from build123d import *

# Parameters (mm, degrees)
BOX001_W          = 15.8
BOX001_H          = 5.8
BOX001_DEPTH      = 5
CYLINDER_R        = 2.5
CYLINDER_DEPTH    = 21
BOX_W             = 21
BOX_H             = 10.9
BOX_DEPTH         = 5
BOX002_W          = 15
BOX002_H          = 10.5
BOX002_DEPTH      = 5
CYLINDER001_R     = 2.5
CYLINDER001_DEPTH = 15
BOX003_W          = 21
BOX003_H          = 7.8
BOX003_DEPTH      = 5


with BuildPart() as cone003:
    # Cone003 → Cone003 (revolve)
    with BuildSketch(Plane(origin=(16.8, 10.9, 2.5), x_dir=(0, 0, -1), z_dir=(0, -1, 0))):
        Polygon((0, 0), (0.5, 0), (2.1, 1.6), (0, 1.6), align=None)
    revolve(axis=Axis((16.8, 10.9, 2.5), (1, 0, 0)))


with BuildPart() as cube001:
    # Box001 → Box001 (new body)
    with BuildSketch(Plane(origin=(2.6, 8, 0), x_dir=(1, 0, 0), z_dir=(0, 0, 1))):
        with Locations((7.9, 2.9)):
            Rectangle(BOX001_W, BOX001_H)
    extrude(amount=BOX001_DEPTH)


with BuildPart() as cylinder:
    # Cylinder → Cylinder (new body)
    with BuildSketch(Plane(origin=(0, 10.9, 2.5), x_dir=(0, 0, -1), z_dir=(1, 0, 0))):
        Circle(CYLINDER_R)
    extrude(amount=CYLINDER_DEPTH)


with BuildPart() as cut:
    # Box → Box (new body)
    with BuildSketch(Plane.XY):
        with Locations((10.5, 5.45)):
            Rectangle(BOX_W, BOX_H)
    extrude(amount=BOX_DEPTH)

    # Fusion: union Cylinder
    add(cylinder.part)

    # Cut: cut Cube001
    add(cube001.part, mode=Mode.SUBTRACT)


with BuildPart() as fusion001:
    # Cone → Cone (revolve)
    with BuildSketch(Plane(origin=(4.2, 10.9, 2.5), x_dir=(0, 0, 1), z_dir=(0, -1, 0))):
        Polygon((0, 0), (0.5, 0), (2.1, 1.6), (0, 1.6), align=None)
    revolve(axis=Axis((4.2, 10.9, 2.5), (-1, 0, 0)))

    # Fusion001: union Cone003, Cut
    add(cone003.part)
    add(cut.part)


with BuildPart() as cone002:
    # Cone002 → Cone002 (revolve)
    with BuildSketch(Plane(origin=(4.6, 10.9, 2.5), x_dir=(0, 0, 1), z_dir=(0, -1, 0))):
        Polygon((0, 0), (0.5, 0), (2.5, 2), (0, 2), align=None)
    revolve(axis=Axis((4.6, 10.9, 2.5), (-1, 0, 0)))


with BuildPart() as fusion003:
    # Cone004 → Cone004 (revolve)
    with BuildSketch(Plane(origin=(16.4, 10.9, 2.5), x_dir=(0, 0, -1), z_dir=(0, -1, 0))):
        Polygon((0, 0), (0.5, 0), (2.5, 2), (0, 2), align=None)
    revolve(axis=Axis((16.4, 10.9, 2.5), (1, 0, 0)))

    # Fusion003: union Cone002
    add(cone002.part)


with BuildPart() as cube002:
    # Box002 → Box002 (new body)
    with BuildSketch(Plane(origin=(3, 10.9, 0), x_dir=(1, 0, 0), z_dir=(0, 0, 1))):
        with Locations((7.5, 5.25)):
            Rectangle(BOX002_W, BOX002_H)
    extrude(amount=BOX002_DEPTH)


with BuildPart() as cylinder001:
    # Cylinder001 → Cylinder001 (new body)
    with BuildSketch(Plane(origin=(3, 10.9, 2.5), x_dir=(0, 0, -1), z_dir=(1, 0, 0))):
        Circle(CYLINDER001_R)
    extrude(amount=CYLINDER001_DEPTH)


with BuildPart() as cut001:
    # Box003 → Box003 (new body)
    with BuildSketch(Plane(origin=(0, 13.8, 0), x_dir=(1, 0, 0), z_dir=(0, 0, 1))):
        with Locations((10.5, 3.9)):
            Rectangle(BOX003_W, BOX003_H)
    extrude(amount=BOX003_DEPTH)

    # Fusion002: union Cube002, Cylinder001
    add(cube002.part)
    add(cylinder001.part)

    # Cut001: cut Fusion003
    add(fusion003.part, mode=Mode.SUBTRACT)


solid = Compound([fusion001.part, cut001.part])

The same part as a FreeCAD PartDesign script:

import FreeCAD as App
import Part
import Sketcher
from FreeCAD import Vector
Q = App.Units.Quantity

doc = App.newDocument("Part")
body = doc.addObject("PartDesign::Body", "Body")

# Sketch on XZ plane
sketch1 = body.newObject("Sketcher::SketchObject", "Sketch")
sketch1.AttachmentSupport = (doc.getObject("XZ_Plane"), [""])
sketch1.MapMode = "FlatFace"
sketch1.AttachmentOffset = App.Placement(Vector(0, 0, -10.9), App.Rotation())
sketch1.addGeometry(Part.LineSegment(Vector(16.8, 2.5, 0), Vector(16.8, 2, 0)), False)
sketch1.addGeometry(Part.LineSegment(Vector(16.8, 2, 0), Vector(18.4, 0.4, 0)), False)
sketch1.addGeometry(Part.LineSegment(Vector(18.4, 0.4, 0), Vector(18.4, 2.5, 0)), False)
sketch1.addGeometry(Part.LineSegment(Vector(18.4, 2.5, 0), Vector(16.8, 2.5, 0)), False)
sketch1.addGeometry(Part.LineSegment(Vector(16.8, 2.5, 0), Vector(18.4, 2.5, 0)), True)  # axis
sketch1.addConstraint(Sketcher.Constraint("Coincident", 0, 2, 1, 1))
sketch1.addConstraint(Sketcher.Constraint("Coincident", 1, 2, 2, 1))
sketch1.addConstraint(Sketcher.Constraint("Coincident", 2, 2, 3, 1))
sketch1.addConstraint(Sketcher.Constraint("Coincident", 3, 2, 0, 1))
sketch1.addConstraint(Sketcher.Constraint("Vertical", 0))
sketch1.addConstraint(Sketcher.Constraint("Vertical", 2))
sketch1.addConstraint(Sketcher.Constraint("Horizontal", 3))
sketch1.addConstraint(Sketcher.Constraint("Horizontal", 4))
sketch1.addConstraint(Sketcher.Constraint("Coincident", 4, 1, 3, 2))
sketch1.addConstraint(Sketcher.Constraint("Vertical", 1, 2, 4, 2))
sketch1.addConstraint(Sketcher.Constraint("Angle", 1, Q("-45 deg")))
sketch1.addConstraint(Sketcher.Constraint("DistanceX", 3, 2, 3, 1, 1.6))
sketch1.addConstraint(Sketcher.Constraint("DistanceY", 0, 2, 0, 1, 0.5))
sketch1.addConstraint(Sketcher.Constraint("DistanceY", -1, 1, 0, 2, 2.0))
sketch1.addConstraint(Sketcher.Constraint("DistanceX", -1, 1, 0, 2, 16.8))
revolution = body.newObject("PartDesign::Revolution", "Revolution")
revolution.Profile = sketch1
revolution.ReferenceAxis = (sketch1, ["Axis0"])
revolution.Angle = 360
body2 = doc.addObject("PartDesign::Body", "Body001")

# Sketch on XY plane
sketch2 = body2.newObject("Sketcher::SketchObject", "Sketch001")
sketch2.AttachmentSupport = (doc.getObject("XY_Plane001"), [""])
sketch2.MapMode = "FlatFace"
sketch2.addGeometry(Part.LineSegment(Vector(3, 14, 0), Vector(3, 8, 0)), False)
sketch2.addGeometry(Part.LineSegment(Vector(3, 8, 0), Vector(18, 8, 0)), False)
sketch2.addGeometry(Part.LineSegment(Vector(18, 8, 0), Vector(18, 14, 0)), False)
sketch2.addGeometry(Part.LineSegment(Vector(18, 14, 0), Vector(3, 14, 0)), False)
sketch2.addConstraint(Sketcher.Constraint("Coincident", 0, 2, 1, 1))
sketch2.addConstraint(Sketcher.Constraint("Coincident", 1, 2, 2, 1))
sketch2.addConstraint(Sketcher.Constraint("Coincident", 2, 2, 3, 1))
sketch2.addConstraint(Sketcher.Constraint("Coincident", 3, 2, 0, 1))
sketch2.addConstraint(Sketcher.Constraint("Vertical", 0))
sketch2.addConstraint(Sketcher.Constraint("Horizontal", 1))
sketch2.addConstraint(Sketcher.Constraint("Vertical", 2))
sketch2.addConstraint(Sketcher.Constraint("Horizontal", 3))
sketch2.addConstraint(Sketcher.Constraint("DistanceX", 1, 1, 1, 2, 15.8))
sketch2.addConstraint(Sketcher.Constraint("DistanceY", 0, 2, 0, 1, 5.8))
sketch2.addConstraint(Sketcher.Constraint("DistanceY", -1, 1, 0, 2, 8.0))
sketch2.addConstraint(Sketcher.Constraint("DistanceX", -1, 1, 0, 2, 2.6))
pad1 = body2.newObject("PartDesign::Pad", "Pad")
pad1.Profile = sketch2
pad1.Length = 5
body3 = doc.addObject("PartDesign::Body", "Body002")

# Sketch on YZ plane
sketch3 = body3.newObject("Sketcher::SketchObject", "Sketch002")
sketch3.AttachmentSupport = (doc.getObject("YZ_Plane002"), [""])
sketch3.MapMode = "FlatFace"
sketch3.addGeometry(Part.Circle(Vector(10.9, 2.5, 0), Vector(0, 0, 1), 2.5), False)
sketch3.addConstraint(Sketcher.Constraint("Diameter", 0, 5.0))
sketch3.addConstraint(Sketcher.Constraint("DistanceX", -1, 1, 0, 3, 10.9))
sketch3.addConstraint(Sketcher.Constraint("DistanceY", -1, 1, 0, 3, 2.5))
pad2 = body3.newObject("PartDesign::Pad", "Pad001")
pad2.Profile = sketch3
pad2.Length = 21
body4 = doc.addObject("PartDesign::Body", "Body003")

# Sketch on XY plane
sketch4 = body4.newObject("Sketcher::SketchObject", "Sketch003")
sketch4.AttachmentSupport = (doc.getObject("XY_Plane003"), [""])
sketch4.MapMode = "FlatFace"
sketch4.addGeometry(Part.LineSegment(Vector(0, 11, 0), Vector(0, 0, 0)), False)
sketch4.addGeometry(Part.LineSegment(Vector(0, 0, 0), Vector(21, 0, 0)), False)
sketch4.addGeometry(Part.LineSegment(Vector(21, 0, 0), Vector(21, 11, 0)), False)
sketch4.addGeometry(Part.LineSegment(Vector(21, 11, 0), Vector(0, 11, 0)), False)
sketch4.addConstraint(Sketcher.Constraint("Coincident", 0, 2, 1, 1))
sketch4.addConstraint(Sketcher.Constraint("Coincident", 1, 2, 2, 1))
sketch4.addConstraint(Sketcher.Constraint("Coincident", 2, 2, 3, 1))
sketch4.addConstraint(Sketcher.Constraint("Coincident", 3, 2, 0, 1))
sketch4.addConstraint(Sketcher.Constraint("Vertical", 0))
sketch4.addConstraint(Sketcher.Constraint("Horizontal", 1))
sketch4.addConstraint(Sketcher.Constraint("Vertical", 2))
sketch4.addConstraint(Sketcher.Constraint("Horizontal", 3))
sketch4.addConstraint(Sketcher.Constraint("Coincident", 0, 2, -1, 1))
sketch4.addConstraint(Sketcher.Constraint("DistanceX", 1, 1, 1, 2, 21.0))
sketch4.addConstraint(Sketcher.Constraint("DistanceY", 0, 2, 0, 1, 10.9))
pad3 = body4.newObject("PartDesign::Pad", "Pad002")
pad3.Profile = sketch4
pad3.Length = 5
doc.recompute()

boolean = body4.newObject("PartDesign::Boolean", "Boolean")
boolean.Type = "Fuse"
boolean.addObjects([body3])
doc.recompute()

boolean2 = body4.newObject("PartDesign::Boolean", "Boolean001")
boolean2.Type = "Cut"
boolean2.addObjects([body2])
body5 = doc.addObject("PartDesign::Body", "Body004")
body5.AllowCompound = True

# Sketch on XZ plane
sketch5 = body5.newObject("Sketcher::SketchObject", "Sketch004")
sketch5.AttachmentSupport = (doc.getObject("XZ_Plane004"), [""])
sketch5.MapMode = "FlatFace"
sketch5.AttachmentOffset = App.Placement(Vector(0, 0, -10.9), App.Rotation())
sketch5.addGeometry(Part.LineSegment(Vector(4.2, 2.5, 0), Vector(4.2, 3, 0)), False)
sketch5.addGeometry(Part.LineSegment(Vector(4.2, 3, 0), Vector(2.6, 4.6, 0)), False)
sketch5.addGeometry(Part.LineSegment(Vector(2.6, 4.6, 0), Vector(2.6, 2.5, 0)), False)
sketch5.addGeometry(Part.LineSegment(Vector(2.6, 2.5, 0), Vector(4.2, 2.5, 0)), False)
sketch5.addGeometry(Part.LineSegment(Vector(4.2, 2.5, 0), Vector(2.6, 2.5, 0)), True)  # axis
sketch5.addConstraint(Sketcher.Constraint("Coincident", 0, 2, 1, 1))
sketch5.addConstraint(Sketcher.Constraint("Coincident", 1, 2, 2, 1))
sketch5.addConstraint(Sketcher.Constraint("Coincident", 2, 2, 3, 1))
sketch5.addConstraint(Sketcher.Constraint("Coincident", 3, 2, 0, 1))
sketch5.addConstraint(Sketcher.Constraint("Vertical", 0))
sketch5.addConstraint(Sketcher.Constraint("Vertical", 2))
sketch5.addConstraint(Sketcher.Constraint("Horizontal", 3))
sketch5.addConstraint(Sketcher.Constraint("Horizontal", 4))
sketch5.addConstraint(Sketcher.Constraint("Coincident", 4, 1, 3, 2))
sketch5.addConstraint(Sketcher.Constraint("Vertical", 1, 2, 4, 2))
sketch5.addConstraint(Sketcher.Constraint("Angle", 1, Q("135 deg")))
sketch5.addConstraint(Sketcher.Constraint("DistanceX", 3, 1, 3, 2, 1.6))
sketch5.addConstraint(Sketcher.Constraint("DistanceY", 0, 1, 0, 2, 0.5))
sketch5.addConstraint(Sketcher.Constraint("DistanceY", -1, 1, 0, 2, 3.0))
sketch5.addConstraint(Sketcher.Constraint("DistanceX", -1, 1, 0, 2, 4.2))
revolution2 = body5.newObject("PartDesign::Revolution", "Revolution001")
revolution2.Profile = sketch5
revolution2.ReferenceAxis = (sketch5, ["Axis0"])
revolution2.Angle = 360
doc.recompute()

boolean3 = body5.newObject("PartDesign::Boolean", "Boolean002")
boolean3.Type = "Fuse"
boolean3.addObjects([body])
doc.recompute()

boolean4 = body5.newObject("PartDesign::Boolean", "Boolean003")
boolean4.Type = "Fuse"
boolean4.addObjects([body4])
body6 = doc.addObject("PartDesign::Body", "Body005")

# Sketch on XZ plane
sketch6 = body6.newObject("Sketcher::SketchObject", "Sketch005")
sketch6.AttachmentSupport = (doc.getObject("XZ_Plane005"), [""])
sketch6.MapMode = "FlatFace"
sketch6.AttachmentOffset = App.Placement(Vector(0, 0, -10.9), App.Rotation())
sketch6.addGeometry(Part.LineSegment(Vector(4.6, 2.5, 0), Vector(4.6, 3, 0)), False)
sketch6.addGeometry(Part.LineSegment(Vector(4.6, 3, 0), Vector(2.6, 5, 0)), False)
sketch6.addGeometry(Part.LineSegment(Vector(2.6, 5, 0), Vector(2.6, 2.5, 0)), False)
sketch6.addGeometry(Part.LineSegment(Vector(2.6, 2.5, 0), Vector(4.6, 2.5, 0)), False)
sketch6.addGeometry(Part.LineSegment(Vector(4.6, 2.5, 0), Vector(2.6, 2.5, 0)), True)  # axis
sketch6.addConstraint(Sketcher.Constraint("Coincident", 0, 2, 1, 1))
sketch6.addConstraint(Sketcher.Constraint("Coincident", 1, 2, 2, 1))
sketch6.addConstraint(Sketcher.Constraint("Coincident", 2, 2, 3, 1))
sketch6.addConstraint(Sketcher.Constraint("Coincident", 3, 2, 0, 1))
sketch6.addConstraint(Sketcher.Constraint("Vertical", 0))
sketch6.addConstraint(Sketcher.Constraint("Vertical", 2))
sketch6.addConstraint(Sketcher.Constraint("Horizontal", 3))
sketch6.addConstraint(Sketcher.Constraint("Horizontal", 4))
sketch6.addConstraint(Sketcher.Constraint("Coincident", 4, 1, 3, 2))
sketch6.addConstraint(Sketcher.Constraint("Vertical", 1, 2, 4, 2))
sketch6.addConstraint(Sketcher.Constraint("DistanceX", 3, 1, 3, 2, 2.0))
sketch6.addConstraint(Sketcher.Constraint("Angle", 1, Q("135 deg")))
sketch6.addConstraint(Sketcher.Constraint("DistanceY", 0, 1, 0, 2, 0.5))
sketch6.addConstraint(Sketcher.Constraint("DistanceY", -1, 1, 0, 2, 3.0))
sketch6.addConstraint(Sketcher.Constraint("DistanceX", -1, 1, 0, 2, 4.6))
revolution3 = body6.newObject("PartDesign::Revolution", "Revolution002")
revolution3.Profile = sketch6
revolution3.ReferenceAxis = (sketch6, ["Axis0"])
revolution3.Angle = 360
body7 = doc.addObject("PartDesign::Body", "Body006")
body7.AllowCompound = True

# Sketch on XZ plane
sketch7 = body7.newObject("Sketcher::SketchObject", "Sketch006")
sketch7.AttachmentSupport = (doc.getObject("XZ_Plane006"), [""])
sketch7.MapMode = "FlatFace"
sketch7.AttachmentOffset = App.Placement(Vector(0, 0, -10.9), App.Rotation())
sketch7.addGeometry(Part.LineSegment(Vector(16.4, 2.5, 0), Vector(16.4, 2, 0)), False)
sketch7.addGeometry(Part.LineSegment(Vector(16.4, 2, 0), Vector(18.4, 0, 0)), False)
sketch7.addGeometry(Part.LineSegment(Vector(18.4, 0, 0), Vector(18.4, 2.5, 0)), False)
sketch7.addGeometry(Part.LineSegment(Vector(18.4, 2.5, 0), Vector(16.4, 2.5, 0)), False)
sketch7.addGeometry(Part.LineSegment(Vector(16.4, 2.5, 0), Vector(18.4, 2.5, 0)), True)  # axis
sketch7.addConstraint(Sketcher.Constraint("Coincident", 0, 2, 1, 1))
sketch7.addConstraint(Sketcher.Constraint("Coincident", 1, 2, 2, 1))
sketch7.addConstraint(Sketcher.Constraint("Coincident", 2, 2, 3, 1))
sketch7.addConstraint(Sketcher.Constraint("Coincident", 3, 2, 0, 1))
sketch7.addConstraint(Sketcher.Constraint("Vertical", 0))
sketch7.addConstraint(Sketcher.Constraint("Vertical", 2))
sketch7.addConstraint(Sketcher.Constraint("Horizontal", 3))
sketch7.addConstraint(Sketcher.Constraint("Horizontal", 4))
sketch7.addConstraint(Sketcher.Constraint("Coincident", 4, 1, 3, 2))
sketch7.addConstraint(Sketcher.Constraint("PointOnObject", 1, 2, -1))
sketch7.addConstraint(Sketcher.Constraint("Vertical", 1, 2, 4, 2))
sketch7.addConstraint(Sketcher.Constraint("DistanceX", 3, 2, 3, 1, 2.0))
sketch7.addConstraint(Sketcher.Constraint("Angle", 1, Q("-45 deg")))
sketch7.addConstraint(Sketcher.Constraint("DistanceY", 0, 2, 0, 1, 0.5))
sketch7.addConstraint(Sketcher.Constraint("DistanceX", -1, 1, 0, 2, 16.4))
revolution4 = body7.newObject("PartDesign::Revolution", "Revolution003")
revolution4.Profile = sketch7
revolution4.ReferenceAxis = (sketch7, ["Axis0"])
revolution4.Angle = 360
doc.recompute()

boolean5 = body7.newObject("PartDesign::Boolean", "Boolean004")
boolean5.Type = "Fuse"
boolean5.addObjects([body6])
body8 = doc.addObject("PartDesign::Body", "Body007")

# Sketch on XY plane
sketch8 = body8.newObject("Sketcher::SketchObject", "Sketch007")
sketch8.AttachmentSupport = (doc.getObject("XY_Plane007"), [""])
sketch8.MapMode = "FlatFace"
sketch8.addGeometry(Part.LineSegment(Vector(3, 21, 0), Vector(3, 11, 0)), False)
sketch8.addGeometry(Part.LineSegment(Vector(3, 11, 0), Vector(18, 11, 0)), False)
sketch8.addGeometry(Part.LineSegment(Vector(18, 11, 0), Vector(18, 21, 0)), False)
sketch8.addGeometry(Part.LineSegment(Vector(18, 21, 0), Vector(3, 21, 0)), False)
sketch8.addConstraint(Sketcher.Constraint("Coincident", 0, 2, 1, 1))
sketch8.addConstraint(Sketcher.Constraint("Coincident", 1, 2, 2, 1))
sketch8.addConstraint(Sketcher.Constraint("Coincident", 2, 2, 3, 1))
sketch8.addConstraint(Sketcher.Constraint("Coincident", 3, 2, 0, 1))
sketch8.addConstraint(Sketcher.Constraint("Vertical", 0))
sketch8.addConstraint(Sketcher.Constraint("Horizontal", 1))
sketch8.addConstraint(Sketcher.Constraint("Vertical", 2))
sketch8.addConstraint(Sketcher.Constraint("Horizontal", 3))
sketch8.addConstraint(Sketcher.Constraint("DistanceX", 1, 1, 1, 2, 15.0))
sketch8.addConstraint(Sketcher.Constraint("DistanceY", 0, 2, 0, 1, 10.5))
sketch8.addConstraint(Sketcher.Constraint("DistanceX", -1, 1, 0, 2, 3.0))
sketch8.addConstraint(Sketcher.Constraint("DistanceY", -1, 1, 0, 2, 10.9))
pad4 = body8.newObject("PartDesign::Pad", "Pad003")
pad4.Profile = sketch8
pad4.Length = 5
body9 = doc.addObject("PartDesign::Body", "Body008")

# Sketch on YZ plane
sketch9 = body9.newObject("Sketcher::SketchObject", "Sketch008")
sketch9.AttachmentSupport = (doc.getObject("YZ_Plane008"), [""])
sketch9.MapMode = "FlatFace"
sketch9.AttachmentOffset = App.Placement(Vector(0, 0, 3), App.Rotation())
sketch9.addGeometry(Part.Circle(Vector(10.9, 2.5, 0), Vector(0, 0, 1), 2.5), False)
sketch9.addConstraint(Sketcher.Constraint("Diameter", 0, 5.0))
sketch9.addConstraint(Sketcher.Constraint("DistanceX", -1, 1, 0, 3, 10.9))
sketch9.addConstraint(Sketcher.Constraint("DistanceY", -1, 1, 0, 3, 2.5))
pad5 = body9.newObject("PartDesign::Pad", "Pad004")
pad5.Profile = sketch9
pad5.Length = 15
body10 = doc.addObject("PartDesign::Body", "Body009")

# Sketch on XY plane
sketch10 = body10.newObject("Sketcher::SketchObject", "Sketch009")
sketch10.AttachmentSupport = (doc.getObject("XY_Plane009"), [""])
sketch10.MapMode = "FlatFace"
sketch10.addGeometry(Part.LineSegment(Vector(0, 22, 0), Vector(0, 14, 0)), False)
sketch10.addGeometry(Part.LineSegment(Vector(0, 14, 0), Vector(21, 14, 0)), False)
sketch10.addGeometry(Part.LineSegment(Vector(21, 14, 0), Vector(21, 22, 0)), False)
sketch10.addGeometry(Part.LineSegment(Vector(21, 22, 0), Vector(0, 22, 0)), False)
sketch10.addConstraint(Sketcher.Constraint("Coincident", 0, 2, 1, 1))
sketch10.addConstraint(Sketcher.Constraint("Coincident", 1, 2, 2, 1))
sketch10.addConstraint(Sketcher.Constraint("Coincident", 2, 2, 3, 1))
sketch10.addConstraint(Sketcher.Constraint("Coincident", 3, 2, 0, 1))
sketch10.addConstraint(Sketcher.Constraint("Vertical", 0))
sketch10.addConstraint(Sketcher.Constraint("Horizontal", 1))
sketch10.addConstraint(Sketcher.Constraint("Vertical", 2))
sketch10.addConstraint(Sketcher.Constraint("Horizontal", 3))
sketch10.addConstraint(Sketcher.Constraint("PointOnObject", 0, 2, -2))
sketch10.addConstraint(Sketcher.Constraint("DistanceX", 1, 1, 1, 2, 21.0))
sketch10.addConstraint(Sketcher.Constraint("DistanceY", 0, 2, 0, 1, 7.8))
sketch10.addConstraint(Sketcher.Constraint("DistanceY", -1, 1, 0, 2, 13.8))
pad6 = body10.newObject("PartDesign::Pad", "Pad005")
pad6.Profile = sketch10
pad6.Length = 5
doc.recompute()

boolean6 = body10.newObject("PartDesign::Boolean", "Boolean005")
boolean6.Type = "Fuse"
boolean6.addObjects([body8])
doc.recompute()

boolean7 = body10.newObject("PartDesign::Boolean", "Boolean006")
boolean7.Type = "Fuse"
boolean7.addObjects([body9])
doc.recompute()

boolean8 = body10.newObject("PartDesign::Boolean", "Boolean007")
boolean8.Type = "Cut"
boolean8.addObjects([body7])

doc.recompute()
